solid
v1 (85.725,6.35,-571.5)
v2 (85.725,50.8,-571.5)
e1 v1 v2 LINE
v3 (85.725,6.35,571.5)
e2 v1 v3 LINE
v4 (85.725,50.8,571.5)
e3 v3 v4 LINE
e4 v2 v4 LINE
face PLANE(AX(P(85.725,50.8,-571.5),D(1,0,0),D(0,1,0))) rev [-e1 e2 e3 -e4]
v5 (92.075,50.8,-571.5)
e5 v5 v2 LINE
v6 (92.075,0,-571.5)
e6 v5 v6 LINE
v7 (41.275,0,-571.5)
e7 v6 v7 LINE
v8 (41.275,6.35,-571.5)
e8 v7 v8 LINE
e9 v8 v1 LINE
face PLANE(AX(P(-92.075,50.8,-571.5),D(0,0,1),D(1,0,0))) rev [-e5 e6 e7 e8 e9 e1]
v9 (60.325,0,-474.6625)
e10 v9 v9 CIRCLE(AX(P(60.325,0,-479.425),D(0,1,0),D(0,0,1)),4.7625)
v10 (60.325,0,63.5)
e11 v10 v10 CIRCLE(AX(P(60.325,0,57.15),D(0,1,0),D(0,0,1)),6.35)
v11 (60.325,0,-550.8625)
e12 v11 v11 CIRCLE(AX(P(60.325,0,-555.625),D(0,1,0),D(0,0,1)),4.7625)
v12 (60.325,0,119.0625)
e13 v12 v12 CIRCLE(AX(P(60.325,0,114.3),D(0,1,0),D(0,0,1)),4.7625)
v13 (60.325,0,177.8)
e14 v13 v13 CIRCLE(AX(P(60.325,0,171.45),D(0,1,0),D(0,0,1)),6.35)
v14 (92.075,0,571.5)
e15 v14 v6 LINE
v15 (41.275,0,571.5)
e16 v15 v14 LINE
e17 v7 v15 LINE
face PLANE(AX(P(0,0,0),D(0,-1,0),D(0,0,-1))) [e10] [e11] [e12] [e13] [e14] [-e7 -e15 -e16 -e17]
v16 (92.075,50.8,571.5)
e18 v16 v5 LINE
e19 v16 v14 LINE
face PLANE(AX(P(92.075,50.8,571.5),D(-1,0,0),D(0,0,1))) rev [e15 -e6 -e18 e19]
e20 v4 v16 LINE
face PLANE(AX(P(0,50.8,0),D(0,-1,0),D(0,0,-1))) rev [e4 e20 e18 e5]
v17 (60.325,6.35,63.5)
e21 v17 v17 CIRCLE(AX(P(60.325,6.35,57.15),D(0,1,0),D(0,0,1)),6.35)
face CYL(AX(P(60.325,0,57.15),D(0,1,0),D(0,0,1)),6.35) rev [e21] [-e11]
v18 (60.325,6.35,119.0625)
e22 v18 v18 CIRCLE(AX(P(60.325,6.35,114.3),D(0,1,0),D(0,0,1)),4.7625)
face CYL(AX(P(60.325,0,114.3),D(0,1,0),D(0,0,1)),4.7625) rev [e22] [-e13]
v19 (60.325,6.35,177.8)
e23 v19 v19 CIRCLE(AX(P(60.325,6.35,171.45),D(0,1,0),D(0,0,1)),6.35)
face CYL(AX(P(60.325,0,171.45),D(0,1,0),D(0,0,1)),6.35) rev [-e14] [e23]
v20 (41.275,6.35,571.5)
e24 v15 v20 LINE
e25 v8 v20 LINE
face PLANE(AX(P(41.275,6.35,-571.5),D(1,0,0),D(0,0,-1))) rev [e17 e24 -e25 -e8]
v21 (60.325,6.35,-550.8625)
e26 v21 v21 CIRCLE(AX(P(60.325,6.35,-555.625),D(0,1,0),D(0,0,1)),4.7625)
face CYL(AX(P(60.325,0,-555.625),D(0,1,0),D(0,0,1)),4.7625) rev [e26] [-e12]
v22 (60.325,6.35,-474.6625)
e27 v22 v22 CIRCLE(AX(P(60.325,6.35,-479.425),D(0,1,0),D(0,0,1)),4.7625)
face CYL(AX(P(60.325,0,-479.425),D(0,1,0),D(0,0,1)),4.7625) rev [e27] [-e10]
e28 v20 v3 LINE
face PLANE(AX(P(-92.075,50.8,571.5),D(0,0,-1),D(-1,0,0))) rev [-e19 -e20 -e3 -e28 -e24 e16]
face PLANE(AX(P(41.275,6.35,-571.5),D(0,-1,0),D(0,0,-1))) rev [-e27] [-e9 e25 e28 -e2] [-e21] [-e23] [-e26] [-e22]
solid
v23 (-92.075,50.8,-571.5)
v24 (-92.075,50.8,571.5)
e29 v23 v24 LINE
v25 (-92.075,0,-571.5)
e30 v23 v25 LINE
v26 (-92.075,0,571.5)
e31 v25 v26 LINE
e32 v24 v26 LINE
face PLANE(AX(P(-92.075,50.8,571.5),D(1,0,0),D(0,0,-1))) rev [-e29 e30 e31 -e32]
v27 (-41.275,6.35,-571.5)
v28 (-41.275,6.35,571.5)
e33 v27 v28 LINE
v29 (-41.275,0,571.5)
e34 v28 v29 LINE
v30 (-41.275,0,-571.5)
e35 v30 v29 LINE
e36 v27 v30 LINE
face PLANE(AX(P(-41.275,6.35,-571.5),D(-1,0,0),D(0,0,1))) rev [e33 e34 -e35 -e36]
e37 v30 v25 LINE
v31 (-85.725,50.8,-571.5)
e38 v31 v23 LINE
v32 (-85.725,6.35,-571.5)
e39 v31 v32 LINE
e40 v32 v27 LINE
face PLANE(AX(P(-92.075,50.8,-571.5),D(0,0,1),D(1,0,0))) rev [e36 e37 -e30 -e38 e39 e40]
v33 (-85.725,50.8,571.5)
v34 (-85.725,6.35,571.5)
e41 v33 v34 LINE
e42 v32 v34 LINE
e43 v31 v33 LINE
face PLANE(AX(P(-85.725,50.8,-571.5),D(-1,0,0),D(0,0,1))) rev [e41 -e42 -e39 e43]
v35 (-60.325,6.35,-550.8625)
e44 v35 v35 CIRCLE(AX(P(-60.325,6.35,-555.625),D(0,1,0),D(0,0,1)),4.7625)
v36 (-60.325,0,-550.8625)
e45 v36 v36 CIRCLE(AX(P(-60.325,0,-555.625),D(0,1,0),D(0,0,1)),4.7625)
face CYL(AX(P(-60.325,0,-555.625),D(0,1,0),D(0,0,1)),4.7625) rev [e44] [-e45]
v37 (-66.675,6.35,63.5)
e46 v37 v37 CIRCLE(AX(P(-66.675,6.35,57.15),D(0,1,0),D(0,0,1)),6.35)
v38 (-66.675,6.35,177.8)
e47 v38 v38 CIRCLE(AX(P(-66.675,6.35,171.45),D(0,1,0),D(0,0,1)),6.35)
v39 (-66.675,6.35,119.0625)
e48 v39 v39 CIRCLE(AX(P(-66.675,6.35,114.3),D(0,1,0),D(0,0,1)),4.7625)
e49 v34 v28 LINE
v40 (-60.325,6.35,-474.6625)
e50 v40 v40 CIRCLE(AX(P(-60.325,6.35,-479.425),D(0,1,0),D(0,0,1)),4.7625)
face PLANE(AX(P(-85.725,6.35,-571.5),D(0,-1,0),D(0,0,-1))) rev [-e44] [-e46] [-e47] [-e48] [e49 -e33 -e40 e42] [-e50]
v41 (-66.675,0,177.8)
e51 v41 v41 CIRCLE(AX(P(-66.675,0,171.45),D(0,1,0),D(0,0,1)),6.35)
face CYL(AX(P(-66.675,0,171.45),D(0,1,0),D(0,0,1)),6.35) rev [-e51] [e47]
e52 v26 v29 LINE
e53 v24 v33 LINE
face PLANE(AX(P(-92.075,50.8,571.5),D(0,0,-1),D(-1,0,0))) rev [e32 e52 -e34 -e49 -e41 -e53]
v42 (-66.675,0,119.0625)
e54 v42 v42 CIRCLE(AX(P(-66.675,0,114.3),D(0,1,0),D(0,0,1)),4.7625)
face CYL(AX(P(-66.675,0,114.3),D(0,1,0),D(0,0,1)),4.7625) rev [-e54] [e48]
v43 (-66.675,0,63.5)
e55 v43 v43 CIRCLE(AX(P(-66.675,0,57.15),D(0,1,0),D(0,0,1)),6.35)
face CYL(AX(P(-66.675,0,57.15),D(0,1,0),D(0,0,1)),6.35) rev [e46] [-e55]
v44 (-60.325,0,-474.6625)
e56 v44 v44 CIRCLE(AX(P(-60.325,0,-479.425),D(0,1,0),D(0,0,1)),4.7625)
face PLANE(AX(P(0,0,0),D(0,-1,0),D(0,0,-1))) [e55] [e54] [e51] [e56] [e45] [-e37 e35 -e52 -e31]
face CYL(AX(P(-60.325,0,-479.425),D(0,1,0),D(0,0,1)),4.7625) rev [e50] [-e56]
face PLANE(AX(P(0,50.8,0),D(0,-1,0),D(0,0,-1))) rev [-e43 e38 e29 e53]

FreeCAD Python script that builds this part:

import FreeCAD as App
import Part
import Sketcher

V = App.Vector
Q = App.Units.Quantity

doc = App.newDocument("Part")
params = doc.addObject("Spreadsheet::Sheet", "Params")
for row, (alias, value) in enumerate([
    ("sketch1_height", "45 in"),
    ("sketch1_width", "7.25 in"),
    ("pad1_length", "2 in"),
    ("sketch2_width", "6.75 in"),
    ("sketch3_diameter", "0.5 in"),
    ("sketch3_diameter2", "0.375 in"),
], start=1):
    params.set(f"A{row}", alias)
    params.set(f"B{row}", "=" + value)
    params.setAlias(f"B{row}", alias)

body = doc.addObject("PartDesign::Body", "Body")
body.AllowCompound = True

sketch1 = body.newObject("Sketcher::SketchObject", "Sketch")
sketch1.AttachmentSupport = (doc.getObject("XZ_Plane"), [""])
sketch1.MapMode = "FlatFace"
sketch1.addGeometry([
    Part.LineSegment(V(-92, -572, 0), V(-92, 572, 0)),
    Part.LineSegment(V(-92, 572, 0), V(92, 572, 0)),
    Part.LineSegment(V(92, 572, 0), V(92, -572, 0)),
    Part.LineSegment(V(92, -572, 0), V(-92, -572, 0)),
], False)
sketch1.addConstraint([
    Sketcher.Constraint("Coincident", 0, 2, 1, 1),
    Sketcher.Constraint("Coincident", 1, 2, 2, 1),
    Sketcher.Constraint("Coincident", 2, 2, 3, 1),
    Sketcher.Constraint("Coincident", 3, 2, 0, 1),
    Sketcher.Constraint("Vertical", 0),
    Sketcher.Constraint("Horizontal", 1),
    Sketcher.Constraint("Vertical", 2),
    Sketcher.Constraint("Horizontal", 3),
    Sketcher.Constraint("Symmetric", 0, 2, 2, 2, -1, 1),
    Sketcher.Constraint("DistanceY", 0, 1, 0, 2, Q("45 in")),
    Sketcher.Constraint("DistanceX", 1, 1, 1, 2, Q("7.25 in")),
])
sketch1.setExpression("Constraints[9]", "Params.sketch1_height")
sketch1.setExpression("Constraints[10]", "Params.sketch1_width")
pad1 = body.newObject("PartDesign::Pad", "Pad")
pad1.Profile = sketch1
pad1.setExpression("Length", "Params.pad1_length")
pad1.Reversed = True

sketch2 = body.newObject("Sketcher::SketchObject", "Sketch001")
sketch2.AttachmentSupport = (doc.getObject("XY_Plane"), [""])
sketch2.MapMode = "FlatFace"
sketch2.AttachmentOffset = App.Placement(V(0, 0, 22.5 * 25.4), App.Rotation())
sketch2.addGeometry([
    Part.LineSegment(V(86, 51, 0), V(-86, 51, 0)),
    Part.LineSegment(V(-86, 51, 0), V(-86, 6, 0)),
    Part.LineSegment(V(-86, 6, 0), V(-41, 6, 0)),
    Part.LineSegment(V(-41, 6, 0), V(-41, 0, 0)),
    Part.LineSegment(V(-41, 0, 0), V(41, 0, 0)),
    Part.LineSegment(V(41, 0, 0), V(41, 6, 0)),
    Part.LineSegment(V(41, 6, 0), V(86, 6, 0)),
    Part.LineSegment(V(86, 6, 0), V(86, 51, 0)),
], False)
sketch2.addConstraint([
    Sketcher.Constraint("Coincident", 0, 2, 1, 1),
    Sketcher.Constraint("Coincident", 1, 2, 2, 1),
    Sketcher.Constraint("Coincident", 2, 2, 3, 1),
    Sketcher.Constraint("Coincident", 3, 2, 4, 1),
    Sketcher.Constraint("Coincident", 4, 2, 5, 1),
    Sketcher.Constraint("Coincident", 5, 2, 6, 1),
    Sketcher.Constraint("Coincident", 6, 2, 7, 1),
    Sketcher.Constraint("Coincident", 7, 2, 0, 1),
    Sketcher.Constraint("Horizontal", 0),
    Sketcher.Constraint("Vertical", 1),
    Sketcher.Constraint("Horizontal", 2),
    Sketcher.Constraint("Vertical", 3),
    Sketcher.Constraint("Horizontal", 4),
    Sketcher.Constraint("Vertical", 5),
    Sketcher.Constraint("Horizontal", 6),
    Sketcher.Constraint("Vertical", 7),
    Sketcher.Constraint("Symmetric", 3, 2, 4, 2, -1, 1),
    Sketcher.Constraint("Symmetric", 1, 2, 6, 2, -2),
    Sketcher.Constraint("Equal", 6, 1),
    Sketcher.Constraint("DistanceY", -1, 1, 0, 2, Q("2 in")),
    Sketcher.Constraint("DistanceX", 1, 2, 4, 2, Q("5 in")),
    Sketcher.Constraint("DistanceX", 0, 2, 0, 1, Q("6.75 in")),
])
sketch2.setExpression("Constraints[21]", "Params.sketch2_width")
pocket1 = body.newObject("PartDesign::Pocket", "Pocket")
pocket1.Profile = sketch2
pocket1.Type = "ThroughAll"

sketch3 = body.newObject("Sketcher::SketchObject", "Sketch002")
sketch3.AttachmentSupport = (doc.getObject("XZ_Plane"), [""])
sketch3.MapMode = "FlatFace"
sketch3.AttachmentOffset = App.Placement(V(0, 0, -0.25 * 25.4), App.Rotation())
sketch3.addGeometry([
    Part.Circle(V(-60.3, -555.6, 0), V(0, 0, 1), 4.8),
    Part.Circle(V(-60.3, -479.4, 0), V(0, 0, 1), 4.8),
    Part.Circle(V(-66.7, 114.3, 0), V(0, 0, 1), 4.8),
    Part.Circle(V(60.3, -555.6, 0), V(0, 0, 1), 4.8),
    Part.Circle(V(60.3, -479.4, 0), V(0, 0, 1), 4.8),
    Part.Circle(V(60.3, 114.3, 0), V(0, 0, 1), 4.8),
    Part.Circle(V(-66.7, 57.1, 0), V(0, 0, 1), 6.3),
    Part.Circle(V(-66.7, 171.4, 0), V(0, 0, 1), 6.3),
    Part.Circle(V(60.3, 57.1, 0), V(0, 0, 1), 6.3),
    Part.Circle(V(60.3, 171.4, 0), V(0, 0, 1), 6.3),
], False)
sketch3.addConstraint([
    Sketcher.Constraint("Equal", 0, 1),
    Sketcher.Constraint("Equal", 1, 2),
    Sketcher.Constraint("Equal", 2, 3),
    Sketcher.Constraint("Equal", 3, 4),
    Sketcher.Constraint("Equal", 4, 5),
    Sketcher.Constraint("Equal", 6, 7),
    Sketcher.Constraint("Equal", 7, 8),
    Sketcher.Constraint("Equal", 8, 9),
    Sketcher.Constraint("Symmetric", 0, 3, 3, 3, -2),
    Sketcher.Constraint("Symmetric", 1, 3, 4, 3, -2),
    Sketcher.Constraint("Horizontal", 2, 3, 5, 3),
    Sketcher.Constraint("Horizontal", 6, 3, 8, 3),
    Sketcher.Constraint("Horizontal", 7, 3, 9, 3),
    Sketcher.Constraint("Vertical", 0, 3, 1, 3),
    Sketcher.Constraint("Vertical", 4, 3, 5, 3),
    Sketcher.Constraint("Vertical", 2, 3, 6, 3),
    Sketcher.Constraint("Vertical", 6, 3, 7, 3),
    Sketcher.Constraint("Vertical", 5, 3, 8, 3),
    Sketcher.Constraint("Vertical", 8, 3, 9, 3),
    Sketcher.Constraint("Diameter", 6, Q("0.5 in")),
    Sketcher.Constraint("Diameter", 0, Q("0.375 in")),
    Sketcher.Constraint("DistanceY", 0, 3, 1, 3, Q("3 in")),
    Sketcher.Constraint("DistanceX", 2, 3, 3, 3, Q("5 in")),
    Sketcher.Constraint("DistanceY", -1, 1, 2, 3, Q("4.5 in")),
    Sketcher.Constraint("DistanceY", 6, 3, 7, 3, Q("4.5 in")),
    Sketcher.Constraint("DistanceY", -1, 1, 6, 3, Q("2.25 in")),
    Sketcher.Constraint("DistanceX", 2, 3, 1, 3, Q("0.25 in")),
    Sketcher.Constraint("DistanceY", 0, 3, -1, 1, Q("21.875 in")),
])
sketch3.setExpression("Constraints[19]", "Params.sketch3_diameter")
sketch3.setExpression("Constraints[20]", "Params.sketch3_diameter2")
pocket2 = body.newObject("PartDesign::Pocket", "Pocket001")
pocket2.Profile = sketch3
pocket2.Type = "ThroughAll"
pocket2.Reversed = True

doc.recompute()
